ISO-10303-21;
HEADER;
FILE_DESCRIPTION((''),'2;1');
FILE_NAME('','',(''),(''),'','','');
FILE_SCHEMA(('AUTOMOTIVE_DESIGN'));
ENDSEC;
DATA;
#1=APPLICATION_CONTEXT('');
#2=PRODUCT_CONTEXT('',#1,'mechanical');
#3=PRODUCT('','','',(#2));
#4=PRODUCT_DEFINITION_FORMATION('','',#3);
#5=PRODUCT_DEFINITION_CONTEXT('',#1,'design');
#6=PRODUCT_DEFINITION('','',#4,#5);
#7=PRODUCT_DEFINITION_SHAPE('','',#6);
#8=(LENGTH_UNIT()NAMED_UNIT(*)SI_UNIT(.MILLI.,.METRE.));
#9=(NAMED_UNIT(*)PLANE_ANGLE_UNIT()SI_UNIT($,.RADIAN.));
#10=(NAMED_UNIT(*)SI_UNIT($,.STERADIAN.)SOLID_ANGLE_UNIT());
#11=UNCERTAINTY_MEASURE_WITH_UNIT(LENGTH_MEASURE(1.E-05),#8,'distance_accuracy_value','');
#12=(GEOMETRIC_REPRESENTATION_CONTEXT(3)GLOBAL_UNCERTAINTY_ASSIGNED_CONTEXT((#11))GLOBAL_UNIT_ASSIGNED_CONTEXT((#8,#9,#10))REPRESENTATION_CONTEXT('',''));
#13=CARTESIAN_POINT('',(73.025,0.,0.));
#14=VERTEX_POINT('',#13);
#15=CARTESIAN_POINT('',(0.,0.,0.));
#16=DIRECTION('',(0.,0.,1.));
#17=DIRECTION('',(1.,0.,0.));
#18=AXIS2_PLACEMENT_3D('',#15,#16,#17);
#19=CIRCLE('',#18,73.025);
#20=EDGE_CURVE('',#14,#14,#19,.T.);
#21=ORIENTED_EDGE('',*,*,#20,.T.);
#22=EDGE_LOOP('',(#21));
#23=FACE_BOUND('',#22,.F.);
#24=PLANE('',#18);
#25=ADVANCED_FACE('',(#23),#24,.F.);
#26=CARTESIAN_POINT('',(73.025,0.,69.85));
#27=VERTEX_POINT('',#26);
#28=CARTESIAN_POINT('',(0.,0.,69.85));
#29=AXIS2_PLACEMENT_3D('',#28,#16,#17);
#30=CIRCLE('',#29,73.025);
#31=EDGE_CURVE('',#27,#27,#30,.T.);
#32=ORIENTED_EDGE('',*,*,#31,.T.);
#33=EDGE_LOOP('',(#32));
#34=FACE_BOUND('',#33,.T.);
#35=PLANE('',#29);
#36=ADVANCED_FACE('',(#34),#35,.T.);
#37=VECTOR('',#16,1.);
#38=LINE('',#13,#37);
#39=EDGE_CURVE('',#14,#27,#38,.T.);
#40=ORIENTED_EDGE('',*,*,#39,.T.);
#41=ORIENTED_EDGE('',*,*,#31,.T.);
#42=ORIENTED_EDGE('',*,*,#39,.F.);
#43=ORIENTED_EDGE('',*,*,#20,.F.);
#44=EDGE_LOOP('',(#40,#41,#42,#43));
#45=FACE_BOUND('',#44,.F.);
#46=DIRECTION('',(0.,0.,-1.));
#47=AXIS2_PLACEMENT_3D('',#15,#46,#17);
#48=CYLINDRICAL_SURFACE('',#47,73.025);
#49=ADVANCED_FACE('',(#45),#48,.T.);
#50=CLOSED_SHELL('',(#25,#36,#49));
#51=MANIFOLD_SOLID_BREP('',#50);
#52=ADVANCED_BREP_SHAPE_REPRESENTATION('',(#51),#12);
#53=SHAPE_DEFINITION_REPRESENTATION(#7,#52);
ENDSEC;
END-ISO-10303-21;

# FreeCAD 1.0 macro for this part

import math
import FreeCAD as App
import Part
import Sketcher
Q = App.Units.Quantity

doc = App.newDocument("Part")
body = doc.addObject("PartDesign::Body", "Body")

# Sketch on XY plane
sketch1 = doc.addObject("Sketcher::SketchObject", "Sketch")
body.addObject(sketch1)
sketch1.AttachmentSupport = (doc.XY_Plane, [""])
sketch1.MapMode = "FlatFace"
sketch1.addGeometry(Part.Circle(App.Vector(0, 0, 0), App.Vector(0, 0, 1), 73), False)
sketch1.addConstraint(Sketcher.Constraint("Coincident", 0, 3, -1, 1))
sketch1.addConstraint(Sketcher.Constraint("Diameter", 0, Q("5.75 in")))
pad1 = doc.addObject("PartDesign::Pad", "Pad")
body.addObject(pad1)
pad1.Profile = sketch1
pad1.Length = Q("2.75 in")

# Sketch on XY plane
sketch2 = doc.addObject("Sketcher::SketchObject", "Sketch001")
body.addObject(sketch2)
sketch2.AttachmentSupport = (doc.XY_Plane, [""])
sketch2.MapMode = "FlatFace"
sketch2.addGeometry(Part.ArcOfCircle(Part.Circle(App.Vector(0, 0, 0), App.Vector(0, 0, 1), 61), math.radians(96), math.radians(264)), False)
sketch2.addGeometry(Part.LineSegment(App.Vector(-6, -61, 0), App.Vector(-6, 61, 0)), False)
sketch2.addGeometry(Part.LineSegment(App.Vector(6, 61, 0), App.Vector(6, -61, 0)), False)
sketch2.addGeometry(Part.ArcOfCircle(Part.Circle(App.Vector(0, 0, 0), App.Vector(0, 0, 1), 61), math.radians(-84), math.radians(84)), False)
sketch2.addConstraint(Sketcher.Constraint("Coincident", 0, 1, 1, 2))
sketch2.addConstraint(Sketcher.Constraint("Coincident", 1, 1, 0, 2))
sketch2.addConstraint(Sketcher.Constraint("Coincident", 2, 1, 3, 2))
sketch2.addConstraint(Sketcher.Constraint("Coincident", 3, 1, 2, 2))
sketch2.addConstraint(Sketcher.Constraint("Vertical", 1))
sketch2.addConstraint(Sketcher.Constraint("Vertical", 2))
sketch2.addConstraint(Sketcher.Constraint("Coincident", 0, 3, -1, 1))
sketch2.addConstraint(Sketcher.Constraint("Coincident", 3, 3, -1, 1))
sketch2.addConstraint(Sketcher.Constraint("Equal", 0, 3))
sketch2.addConstraint(Sketcher.Constraint("Horizontal", 0, 1, 2, 1))
sketch2.addConstraint(Sketcher.Constraint("DistanceY", 1, 1, 1, 2, Q("4.8 in")))
sketch2.addConstraint(Sketcher.Constraint("DistanceX", 0, 1, 2, 1, Q("0.5 in")))
pad2 = doc.addObject("PartDesign::Pad", "Pad001")
body.addObject(pad2)
pad2.Profile = sketch2
pad2.Length = Q("1 in")

doc.recompute()
